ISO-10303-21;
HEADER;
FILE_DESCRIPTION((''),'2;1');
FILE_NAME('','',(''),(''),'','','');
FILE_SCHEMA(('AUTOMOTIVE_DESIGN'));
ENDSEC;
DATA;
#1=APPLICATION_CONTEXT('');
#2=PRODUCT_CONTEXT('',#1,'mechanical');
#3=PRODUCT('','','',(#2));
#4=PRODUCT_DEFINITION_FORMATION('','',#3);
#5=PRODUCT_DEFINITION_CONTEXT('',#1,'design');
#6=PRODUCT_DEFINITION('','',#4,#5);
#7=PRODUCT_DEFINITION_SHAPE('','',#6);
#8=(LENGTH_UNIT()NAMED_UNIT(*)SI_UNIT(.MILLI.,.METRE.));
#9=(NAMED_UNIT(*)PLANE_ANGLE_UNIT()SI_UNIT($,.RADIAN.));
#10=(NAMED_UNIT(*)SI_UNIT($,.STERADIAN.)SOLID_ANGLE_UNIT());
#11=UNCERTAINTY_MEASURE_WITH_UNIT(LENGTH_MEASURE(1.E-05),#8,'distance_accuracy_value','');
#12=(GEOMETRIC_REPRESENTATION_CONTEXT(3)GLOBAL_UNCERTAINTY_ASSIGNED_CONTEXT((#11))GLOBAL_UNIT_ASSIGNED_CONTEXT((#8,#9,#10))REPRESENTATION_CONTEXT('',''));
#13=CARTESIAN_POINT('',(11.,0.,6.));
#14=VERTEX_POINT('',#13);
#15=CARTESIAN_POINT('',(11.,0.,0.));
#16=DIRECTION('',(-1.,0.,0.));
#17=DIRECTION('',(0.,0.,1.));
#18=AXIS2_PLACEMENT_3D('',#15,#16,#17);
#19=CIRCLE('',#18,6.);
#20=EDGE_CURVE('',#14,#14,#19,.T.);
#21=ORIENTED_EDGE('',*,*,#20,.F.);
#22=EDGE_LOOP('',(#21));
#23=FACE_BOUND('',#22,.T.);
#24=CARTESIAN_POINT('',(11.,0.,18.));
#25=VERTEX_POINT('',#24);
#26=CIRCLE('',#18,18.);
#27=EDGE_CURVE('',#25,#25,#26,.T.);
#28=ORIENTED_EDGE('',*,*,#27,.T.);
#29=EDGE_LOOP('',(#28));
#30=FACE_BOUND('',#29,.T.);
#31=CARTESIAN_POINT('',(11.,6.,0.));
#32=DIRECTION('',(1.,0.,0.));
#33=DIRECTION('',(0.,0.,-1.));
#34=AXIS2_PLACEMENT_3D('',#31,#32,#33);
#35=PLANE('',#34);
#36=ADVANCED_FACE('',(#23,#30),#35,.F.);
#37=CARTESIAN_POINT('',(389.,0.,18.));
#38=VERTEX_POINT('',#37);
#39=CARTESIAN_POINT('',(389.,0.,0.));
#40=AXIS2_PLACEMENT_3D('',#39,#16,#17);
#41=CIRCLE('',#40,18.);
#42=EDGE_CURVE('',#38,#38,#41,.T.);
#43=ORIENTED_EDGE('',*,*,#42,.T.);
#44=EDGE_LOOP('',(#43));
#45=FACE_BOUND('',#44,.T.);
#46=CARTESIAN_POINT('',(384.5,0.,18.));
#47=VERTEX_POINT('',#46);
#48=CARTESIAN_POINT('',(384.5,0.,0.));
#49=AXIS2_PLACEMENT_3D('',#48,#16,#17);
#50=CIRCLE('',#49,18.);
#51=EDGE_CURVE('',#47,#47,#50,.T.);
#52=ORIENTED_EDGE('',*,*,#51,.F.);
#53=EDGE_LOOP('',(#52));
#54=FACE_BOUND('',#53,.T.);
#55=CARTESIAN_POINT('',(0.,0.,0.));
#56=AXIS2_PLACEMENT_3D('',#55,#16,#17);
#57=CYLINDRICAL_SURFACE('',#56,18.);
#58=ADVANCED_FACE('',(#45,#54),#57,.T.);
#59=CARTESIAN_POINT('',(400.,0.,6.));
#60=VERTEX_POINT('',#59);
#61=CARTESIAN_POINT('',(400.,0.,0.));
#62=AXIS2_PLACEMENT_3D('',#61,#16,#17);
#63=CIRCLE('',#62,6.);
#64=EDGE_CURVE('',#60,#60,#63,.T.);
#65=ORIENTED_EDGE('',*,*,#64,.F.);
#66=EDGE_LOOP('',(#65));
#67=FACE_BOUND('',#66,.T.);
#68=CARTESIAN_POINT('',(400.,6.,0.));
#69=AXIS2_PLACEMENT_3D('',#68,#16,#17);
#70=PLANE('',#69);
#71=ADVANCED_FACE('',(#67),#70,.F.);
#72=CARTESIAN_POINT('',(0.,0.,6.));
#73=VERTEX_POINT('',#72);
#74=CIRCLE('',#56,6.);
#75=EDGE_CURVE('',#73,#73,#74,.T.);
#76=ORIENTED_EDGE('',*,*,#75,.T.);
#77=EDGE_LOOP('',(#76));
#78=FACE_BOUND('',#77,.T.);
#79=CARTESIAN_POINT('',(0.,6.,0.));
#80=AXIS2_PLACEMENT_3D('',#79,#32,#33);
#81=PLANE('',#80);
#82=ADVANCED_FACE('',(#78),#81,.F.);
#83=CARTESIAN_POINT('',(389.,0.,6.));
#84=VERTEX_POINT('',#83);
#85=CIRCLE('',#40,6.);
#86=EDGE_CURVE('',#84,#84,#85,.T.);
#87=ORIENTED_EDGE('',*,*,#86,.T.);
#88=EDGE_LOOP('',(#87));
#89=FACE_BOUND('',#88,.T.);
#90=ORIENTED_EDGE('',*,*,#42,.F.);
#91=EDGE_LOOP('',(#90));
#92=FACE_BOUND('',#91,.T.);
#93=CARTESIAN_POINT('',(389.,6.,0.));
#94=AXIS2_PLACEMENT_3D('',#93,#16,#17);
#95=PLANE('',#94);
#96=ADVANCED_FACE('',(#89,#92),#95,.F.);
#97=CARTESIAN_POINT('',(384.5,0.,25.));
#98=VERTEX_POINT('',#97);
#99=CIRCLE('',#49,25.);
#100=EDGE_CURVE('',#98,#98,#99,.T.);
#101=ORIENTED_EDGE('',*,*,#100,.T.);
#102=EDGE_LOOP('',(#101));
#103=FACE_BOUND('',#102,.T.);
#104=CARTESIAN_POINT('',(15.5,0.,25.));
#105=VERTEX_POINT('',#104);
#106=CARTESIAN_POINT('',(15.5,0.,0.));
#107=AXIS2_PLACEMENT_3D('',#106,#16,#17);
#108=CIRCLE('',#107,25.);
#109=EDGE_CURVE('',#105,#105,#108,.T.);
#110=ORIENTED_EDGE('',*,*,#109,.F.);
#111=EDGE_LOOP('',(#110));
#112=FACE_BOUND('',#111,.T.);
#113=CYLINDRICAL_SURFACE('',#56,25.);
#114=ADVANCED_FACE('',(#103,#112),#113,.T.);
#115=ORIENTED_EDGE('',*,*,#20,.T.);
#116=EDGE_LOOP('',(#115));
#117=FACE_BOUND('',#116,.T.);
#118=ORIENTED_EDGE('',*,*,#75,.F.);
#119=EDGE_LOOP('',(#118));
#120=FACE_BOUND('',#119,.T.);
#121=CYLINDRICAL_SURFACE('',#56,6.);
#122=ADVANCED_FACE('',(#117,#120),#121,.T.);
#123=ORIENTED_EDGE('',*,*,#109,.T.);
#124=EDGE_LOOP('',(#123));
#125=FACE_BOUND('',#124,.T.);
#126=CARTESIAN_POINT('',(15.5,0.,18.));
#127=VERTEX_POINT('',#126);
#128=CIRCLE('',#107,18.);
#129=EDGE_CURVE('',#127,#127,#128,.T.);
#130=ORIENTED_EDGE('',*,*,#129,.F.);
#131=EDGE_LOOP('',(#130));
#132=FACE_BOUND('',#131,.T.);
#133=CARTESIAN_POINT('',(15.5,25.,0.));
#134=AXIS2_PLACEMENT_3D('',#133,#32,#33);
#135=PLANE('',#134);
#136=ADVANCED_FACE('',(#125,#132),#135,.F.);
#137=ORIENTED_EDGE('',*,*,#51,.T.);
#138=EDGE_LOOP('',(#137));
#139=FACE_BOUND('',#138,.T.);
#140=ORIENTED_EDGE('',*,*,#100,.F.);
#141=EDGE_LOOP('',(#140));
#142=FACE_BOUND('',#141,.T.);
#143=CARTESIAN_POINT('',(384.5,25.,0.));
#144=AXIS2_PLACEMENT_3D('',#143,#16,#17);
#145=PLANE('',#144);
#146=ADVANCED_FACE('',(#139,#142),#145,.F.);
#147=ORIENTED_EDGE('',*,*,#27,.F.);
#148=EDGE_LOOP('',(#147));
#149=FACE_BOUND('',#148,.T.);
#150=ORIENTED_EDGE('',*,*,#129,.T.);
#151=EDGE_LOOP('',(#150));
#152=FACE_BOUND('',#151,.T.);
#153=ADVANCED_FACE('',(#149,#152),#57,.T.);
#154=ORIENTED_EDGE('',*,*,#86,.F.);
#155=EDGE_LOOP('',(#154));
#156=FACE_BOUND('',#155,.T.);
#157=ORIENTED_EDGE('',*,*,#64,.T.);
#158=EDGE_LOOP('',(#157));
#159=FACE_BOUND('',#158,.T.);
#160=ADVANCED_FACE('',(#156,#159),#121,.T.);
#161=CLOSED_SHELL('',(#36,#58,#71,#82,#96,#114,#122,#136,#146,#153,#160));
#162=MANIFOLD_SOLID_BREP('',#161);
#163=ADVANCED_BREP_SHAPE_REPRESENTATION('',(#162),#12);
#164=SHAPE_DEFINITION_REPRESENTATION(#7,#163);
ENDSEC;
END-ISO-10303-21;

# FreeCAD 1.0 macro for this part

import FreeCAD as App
import Part
import Sketcher

V = App.Vector
Q = App.Units.Quantity

doc = App.newDocument("Part")
body = doc.addObject("PartDesign::Body", "Body")

# Sketch on XY plane
sketch1 = body.newObject("Sketcher::SketchObject", "Sketch")
sketch1.AttachmentSupport = (doc.getObject("XY_Plane"), [""])
sketch1.MapMode = "FlatFace"
sketch1.addGeometry(Part.LineSegment(V(0, 0, 0), V(400, 0, 0)), False)
sketch1.addGeometry(Part.LineSegment(V(400, 0, 0), V(400, 6, 0)), False)
sketch1.addGeometry(Part.LineSegment(V(400, 6, 0), V(389, 6, 0)), False)
sketch1.addGeometry(Part.LineSegment(V(389, 6, 0), V(389, 18, 0)), False)
sketch1.addGeometry(Part.LineSegment(V(389, 18, 0), V(384.5, 18, 0)), False)
sketch1.addGeometry(Part.LineSegment(V(384.5, 18, 0), V(384.5, 25, 0)), False)
sketch1.addGeometry(Part.LineSegment(V(384.5, 25, 0), V(15.5, 25, 0)), False)
sketch1.addGeometry(Part.LineSegment(V(15.5, 25, 0), V(15.5, 18, 0)), False)
sketch1.addGeometry(Part.LineSegment(V(15.5, 18, 0), V(11, 18, 0)), False)
sketch1.addGeometry(Part.LineSegment(V(11, 18, 0), V(11, 6, 0)), False)
sketch1.addGeometry(Part.LineSegment(V(11, 6, 0), V(0, 6, 0)), False)
sketch1.addGeometry(Part.LineSegment(V(0, 6, 0), V(0, 0, 0)), False)
sketch1.addConstraint(Sketcher.Constraint("Coincident", 0, 2, 1, 1))
sketch1.addConstraint(Sketcher.Constraint("Coincident", 1, 2, 2, 1))
sketch1.addConstraint(Sketcher.Constraint("Coincident", 2, 2, 3, 1))
sketch1.addConstraint(Sketcher.Constraint("Coincident", 3, 2, 4, 1))
sketch1.addConstraint(Sketcher.Constraint("Coincident", 4, 2, 5, 1))
sketch1.addConstraint(Sketcher.Constraint("Coincident", 5, 2, 6, 1))
sketch1.addConstraint(Sketcher.Constraint("Coincident", 6, 2, 7, 1))
sketch1.addConstraint(Sketcher.Constraint("Coincident", 7, 2, 8, 1))
sketch1.addConstraint(Sketcher.Constraint("Coincident", 8, 2, 9, 1))
sketch1.addConstraint(Sketcher.Constraint("Coincident", 9, 2, 10, 1))
sketch1.addConstraint(Sketcher.Constraint("Coincident", 10, 2, 11, 1))
sketch1.addConstraint(Sketcher.Constraint("Coincident", 11, 2, 0, 1))
sketch1.addConstraint(Sketcher.Constraint("Horizontal", 0))
sketch1.addConstraint(Sketcher.Constraint("Vertical", 1))
sketch1.addConstraint(Sketcher.Constraint("Horizontal", 2))
sketch1.addConstraint(Sketcher.Constraint("Vertical", 3))
sketch1.addConstraint(Sketcher.Constraint("Horizontal", 4))
sketch1.addConstraint(Sketcher.Constraint("Vertical", 5))
sketch1.addConstraint(Sketcher.Constraint("Horizontal", 6))
sketch1.addConstraint(Sketcher.Constraint("Vertical", 7))
sketch1.addConstraint(Sketcher.Constraint("Horizontal", 8))
sketch1.addConstraint(Sketcher.Constraint("Vertical", 9))
sketch1.addConstraint(Sketcher.Constraint("Horizontal", 10))
sketch1.addConstraint(Sketcher.Constraint("Vertical", 11))
sketch1.addConstraint(Sketcher.Constraint("Coincident", 11, 2, -1, 1))
sketch1.addConstraint(Sketcher.Constraint("Horizontal", 4, 2, 7, 2))
sketch1.addConstraint(Sketcher.Constraint("Horizontal", 2, 2, 9, 2))
sketch1.addConstraint(Sketcher.Constraint("Equal", 4, 8))
sketch1.addConstraint(Sketcher.Constraint("Equal", 2, 10))
sketch1.addConstraint(Sketcher.Constraint("DistanceX", 0, 1, 0, 2, Q("400 mm")))
sketch1.addConstraint(Sketcher.Constraint("DistanceX", 2, 2, 2, 1, Q("11 mm")))
sketch1.addConstraint(Sketcher.Constraint("DistanceX", 6, 2, 6, 1, Q("369 mm")))
sketch1.addConstraint(Sketcher.Constraint("DistanceY", 1, 1, 1, 2, Q("6 mm")))
sketch1.addConstraint(Sketcher.Constraint("DistanceY", 3, 1, 3, 2, Q("12 mm")))
sketch1.addConstraint(Sketcher.Constraint("DistanceY", 5, 1, 5, 2, Q("7 mm")))
revolution = body.newObject("PartDesign::Revolution", "Revolution")
revolution.Profile = sketch1
revolution.ReferenceAxis = (sketch1, ["H_Axis"])
revolution.Angle = 360

doc.recompute()
